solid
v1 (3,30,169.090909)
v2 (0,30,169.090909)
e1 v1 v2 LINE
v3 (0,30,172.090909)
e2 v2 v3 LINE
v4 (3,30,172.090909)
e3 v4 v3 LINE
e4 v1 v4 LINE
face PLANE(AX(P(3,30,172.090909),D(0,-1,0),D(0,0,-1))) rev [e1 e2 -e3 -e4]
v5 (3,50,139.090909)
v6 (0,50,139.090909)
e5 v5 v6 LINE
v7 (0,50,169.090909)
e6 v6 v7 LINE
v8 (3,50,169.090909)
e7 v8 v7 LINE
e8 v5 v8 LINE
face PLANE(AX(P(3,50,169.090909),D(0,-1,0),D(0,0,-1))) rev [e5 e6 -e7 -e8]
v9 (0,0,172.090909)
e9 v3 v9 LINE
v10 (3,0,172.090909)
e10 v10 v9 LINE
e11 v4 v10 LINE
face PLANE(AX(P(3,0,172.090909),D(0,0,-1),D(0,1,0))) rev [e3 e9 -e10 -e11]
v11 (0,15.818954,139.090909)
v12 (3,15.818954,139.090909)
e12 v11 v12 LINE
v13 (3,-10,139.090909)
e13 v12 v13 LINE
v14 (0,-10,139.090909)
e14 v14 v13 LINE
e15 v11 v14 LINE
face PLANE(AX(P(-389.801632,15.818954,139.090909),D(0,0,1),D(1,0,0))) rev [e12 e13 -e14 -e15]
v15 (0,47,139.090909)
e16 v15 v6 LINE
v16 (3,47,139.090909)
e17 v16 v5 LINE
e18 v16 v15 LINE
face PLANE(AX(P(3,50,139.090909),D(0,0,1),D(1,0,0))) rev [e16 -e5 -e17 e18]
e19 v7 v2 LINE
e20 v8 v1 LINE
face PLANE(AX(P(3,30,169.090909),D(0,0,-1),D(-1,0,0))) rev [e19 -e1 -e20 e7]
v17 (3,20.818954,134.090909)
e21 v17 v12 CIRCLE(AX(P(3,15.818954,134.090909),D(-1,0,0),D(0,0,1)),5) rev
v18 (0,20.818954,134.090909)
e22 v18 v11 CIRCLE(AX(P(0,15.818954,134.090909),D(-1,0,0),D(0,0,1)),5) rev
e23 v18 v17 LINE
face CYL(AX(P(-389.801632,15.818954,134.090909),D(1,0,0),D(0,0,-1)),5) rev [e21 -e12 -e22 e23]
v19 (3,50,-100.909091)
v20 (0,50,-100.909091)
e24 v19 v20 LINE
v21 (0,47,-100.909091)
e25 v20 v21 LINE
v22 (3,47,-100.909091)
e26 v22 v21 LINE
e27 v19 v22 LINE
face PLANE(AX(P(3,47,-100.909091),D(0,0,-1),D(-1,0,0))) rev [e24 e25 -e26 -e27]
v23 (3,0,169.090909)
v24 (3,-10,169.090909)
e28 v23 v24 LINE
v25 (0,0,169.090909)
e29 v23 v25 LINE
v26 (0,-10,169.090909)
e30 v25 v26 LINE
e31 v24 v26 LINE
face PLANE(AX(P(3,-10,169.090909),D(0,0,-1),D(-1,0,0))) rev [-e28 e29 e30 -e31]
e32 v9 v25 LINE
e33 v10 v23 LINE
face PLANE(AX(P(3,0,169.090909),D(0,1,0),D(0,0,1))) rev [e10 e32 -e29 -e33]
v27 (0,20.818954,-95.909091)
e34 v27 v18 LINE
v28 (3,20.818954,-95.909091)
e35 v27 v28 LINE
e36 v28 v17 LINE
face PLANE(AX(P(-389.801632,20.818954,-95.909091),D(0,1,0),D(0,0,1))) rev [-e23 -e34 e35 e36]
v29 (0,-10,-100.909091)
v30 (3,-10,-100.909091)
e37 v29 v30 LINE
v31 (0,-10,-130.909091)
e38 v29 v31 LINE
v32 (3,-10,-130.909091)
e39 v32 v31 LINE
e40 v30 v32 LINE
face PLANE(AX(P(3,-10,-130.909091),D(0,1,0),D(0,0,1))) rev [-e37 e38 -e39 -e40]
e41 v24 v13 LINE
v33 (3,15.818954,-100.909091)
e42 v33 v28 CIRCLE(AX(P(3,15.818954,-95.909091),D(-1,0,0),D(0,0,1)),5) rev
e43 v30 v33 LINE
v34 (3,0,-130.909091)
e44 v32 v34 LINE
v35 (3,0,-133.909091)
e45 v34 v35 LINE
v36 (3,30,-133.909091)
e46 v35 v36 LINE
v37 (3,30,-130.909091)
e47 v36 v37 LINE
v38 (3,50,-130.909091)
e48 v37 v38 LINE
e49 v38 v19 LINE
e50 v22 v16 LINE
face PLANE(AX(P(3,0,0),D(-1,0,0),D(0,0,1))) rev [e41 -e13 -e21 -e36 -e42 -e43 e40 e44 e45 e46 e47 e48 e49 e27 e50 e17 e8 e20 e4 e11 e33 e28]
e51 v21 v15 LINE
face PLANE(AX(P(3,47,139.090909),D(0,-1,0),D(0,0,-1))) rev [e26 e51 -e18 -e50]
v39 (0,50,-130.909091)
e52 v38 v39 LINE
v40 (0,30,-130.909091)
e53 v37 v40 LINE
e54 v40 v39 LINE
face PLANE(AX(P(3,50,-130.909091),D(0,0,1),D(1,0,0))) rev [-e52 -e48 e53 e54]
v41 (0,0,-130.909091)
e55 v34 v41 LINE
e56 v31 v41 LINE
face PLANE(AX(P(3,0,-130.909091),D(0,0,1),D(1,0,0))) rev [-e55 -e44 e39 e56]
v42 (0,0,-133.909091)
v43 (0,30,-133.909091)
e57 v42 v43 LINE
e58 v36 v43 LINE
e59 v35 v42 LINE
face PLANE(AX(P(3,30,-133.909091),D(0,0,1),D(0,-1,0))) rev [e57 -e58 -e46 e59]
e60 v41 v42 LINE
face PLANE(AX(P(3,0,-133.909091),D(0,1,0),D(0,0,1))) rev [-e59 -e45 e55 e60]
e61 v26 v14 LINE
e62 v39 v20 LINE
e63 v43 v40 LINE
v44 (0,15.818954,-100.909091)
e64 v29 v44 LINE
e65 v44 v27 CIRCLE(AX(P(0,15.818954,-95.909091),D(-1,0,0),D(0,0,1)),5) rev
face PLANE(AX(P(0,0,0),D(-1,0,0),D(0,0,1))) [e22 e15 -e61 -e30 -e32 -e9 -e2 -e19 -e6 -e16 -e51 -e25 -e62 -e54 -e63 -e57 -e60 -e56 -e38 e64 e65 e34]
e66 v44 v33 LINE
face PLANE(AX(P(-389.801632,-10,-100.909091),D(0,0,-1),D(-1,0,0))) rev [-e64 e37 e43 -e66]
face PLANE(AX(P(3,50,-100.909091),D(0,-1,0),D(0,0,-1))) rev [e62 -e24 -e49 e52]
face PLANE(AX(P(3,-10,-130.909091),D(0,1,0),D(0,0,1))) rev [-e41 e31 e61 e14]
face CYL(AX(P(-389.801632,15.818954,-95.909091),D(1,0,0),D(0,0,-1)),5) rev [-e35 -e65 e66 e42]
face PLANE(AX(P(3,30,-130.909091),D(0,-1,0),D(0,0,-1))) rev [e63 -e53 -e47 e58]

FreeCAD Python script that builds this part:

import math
import FreeCAD as App
import Part
import Sketcher

V = App.Vector
Q = App.Units.Quantity

doc = App.newDocument("Part")
body = doc.addObject("PartDesign::Body", "Body")

sketch1 = doc.addObject("Sketcher::SketchObject", "Sketch")
body.addObject(sketch1)
sketch1.AttachmentSupport = (doc.YZ_Plane, [""])
sketch1.MapMode = "FlatFace"
sketch1.addGeometry([
    Part.LineSegment(V(50, 139.1, 0), V(50, 169.1, 0)),
    Part.LineSegment(V(50, 169.1, 0), V(30, 169.1, 0)),
    Part.LineSegment(V(30, 169.1, 0), V(30, 172.1, 0)),
    Part.LineSegment(V(30, 172.1, 0), V(0, 172.1, 0)),
    Part.LineSegment(V(0, 172.1, 0), V(0, 169.1, 0)),
    Part.LineSegment(V(0, 169.1, 0), V(-10, 169.1, 0)),
    Part.LineSegment(V(-10, 169.1, 0), V(-10, -130.9, 0)),
    Part.LineSegment(V(-10, -130.9, 0), V(0, -130.9, 0)),
    Part.LineSegment(V(0, -130.9, 0), V(0, -133.9, 0)),
    Part.LineSegment(V(0, -133.9, 0), V(30, -133.9, 0)),
    Part.LineSegment(V(30, -133.9, 0), V(30, -130.9, 0)),
    Part.LineSegment(V(30, -130.9, 0), V(50, -130.9, 0)),
    Part.LineSegment(V(50, -130.9, 0), V(50, -100.9, 0)),
    Part.LineSegment(V(50, -100.9, 0), V(47, -100.9, 0)),
    Part.LineSegment(V(47, -100.9, 0), V(47, 139.1, 0)),
    Part.LineSegment(V(47, 139.1, 0), V(50, 139.1, 0)),
], False)
sketch1.addConstraint([
    Sketcher.Constraint("Coincident", 0, 2, 1, 1),
    Sketcher.Constraint("Coincident", 1, 2, 2, 1),
    Sketcher.Constraint("Coincident", 2, 2, 3, 1),
    Sketcher.Constraint("Coincident", 3, 2, 4, 1),
    Sketcher.Constraint("Coincident", 4, 2, 5, 1),
    Sketcher.Constraint("Coincident", 5, 2, 6, 1),
    Sketcher.Constraint("Coincident", 6, 2, 7, 1),
    Sketcher.Constraint("Coincident", 7, 2, 8, 1),
    Sketcher.Constraint("Coincident", 8, 2, 9, 1),
    Sketcher.Constraint("Coincident", 9, 2, 10, 1),
    Sketcher.Constraint("Coincident", 10, 2, 11, 1),
    Sketcher.Constraint("Coincident", 11, 2, 12, 1),
    Sketcher.Constraint("Coincident", 12, 2, 13, 1),
    Sketcher.Constraint("Coincident", 13, 2, 14, 1),
    Sketcher.Constraint("Coincident", 14, 2, 15, 1),
    Sketcher.Constraint("Coincident", 15, 2, 0, 1),
    Sketcher.Constraint("Vertical", 0),
    Sketcher.Constraint("Horizontal", 1),
    Sketcher.Constraint("Vertical", 2),
    Sketcher.Constraint("Horizontal", 3),
    Sketcher.Constraint("Vertical", 4),
    Sketcher.Constraint("Horizontal", 5),
    Sketcher.Constraint("Vertical", 6),
    Sketcher.Constraint("Horizontal", 7),
    Sketcher.Constraint("Vertical", 8),
    Sketcher.Constraint("Horizontal", 9),
    Sketcher.Constraint("Vertical", 10),
    Sketcher.Constraint("Horizontal", 11),
    Sketcher.Constraint("Vertical", 12),
    Sketcher.Constraint("Horizontal", 13),
    Sketcher.Constraint("Vertical", 14),
    Sketcher.Constraint("Horizontal", 15),
    Sketcher.Constraint("PointOnObject", 3, 2, -2),
    Sketcher.Constraint("PointOnObject", 7, 2, -2),
    Sketcher.Constraint("Horizontal", 1, 2, 4, 2),
    Sketcher.Constraint("Horizontal", 7, 2, 10, 2),
    Sketcher.Constraint("Vertical", 2, 2, 9, 2),
    Sketcher.Constraint("Vertical", 0, 2, 11, 2),
    Sketcher.Constraint("Equal", 9, 0),
    Sketcher.Constraint("Equal", 15, 2),
    Sketcher.Constraint("Equal", 4, 8),
    Sketcher.Constraint("Equal", 0, 12),
    Sketcher.Constraint("DistanceX", 1, 2, 1, 1, Q("20 mm")),
    Sketcher.Constraint("DistanceX", 3, 2, 3, 1, Q("30 mm")),
    Sketcher.Constraint("DistanceX", 5, 2, 5, 1, Q("10 mm")),
    Sketcher.Constraint("DistanceX", 13, 2, 13, 1, Q("3 mm")),
    Sketcher.Constraint("DistanceY", 6, 2, 6, 1, Q("300 mm")),
    Sketcher.Constraint("DistanceY", -1, 1, 0, 2, Q("169.090909 mm")),
])
pad1 = doc.addObject("PartDesign::Pad", "Pad")
body.addObject(pad1)
pad1.Profile = sketch1
pad1.Length = 3

sketch2 = doc.addObject("Sketcher::SketchObject", "Sketch001")
body.addObject(sketch2)
sketch2.AttachmentSupport = (doc.YZ_Plane, [""])
sketch2.MapMode = "FlatFace"
sketch2.addGeometry([
    Part.ArcOfCircle(Part.Circle(V(16, -96, 0), V(0, 0, 1), 5), math.radians(-90), math.radians(0)),
    Part.LineSegment(V(16, -101, 0), V(-1717, -101, 0)),
    Part.LineSegment(V(-1717, -101, 0), V(-1717, 139, 0)),
    Part.LineSegment(V(-1717, 139, 0), V(16, 139, 0)),
    Part.ArcOfCircle(Part.Circle(V(16, 134, 0), V(0, 0, 1), 5), math.radians(0), math.radians(90)),
    Part.LineSegment(V(21, 134, 0), V(21, -96, 0)),
], False)
sketch2.addConstraint([
    Sketcher.Constraint("Tangent", 0, 1, 1, 1),
    Sketcher.Constraint("Coincident", 1, 2, 2, 1),
    Sketcher.Constraint("Coincident", 2, 2, 3, 1),
    Sketcher.Constraint("Tangent", 3, 2, 4, 2),
    Sketcher.Constraint("Tangent", 4, 1, 5, 1),
    Sketcher.Constraint("Tangent", 5, 2, 0, 2),
    Sketcher.Constraint("Horizontal", 1),
    Sketcher.Constraint("Vertical", 2),
    Sketcher.Constraint("Horizontal", 3),
    Sketcher.Constraint("Vertical", 5),
    Sketcher.Constraint("Equal", 0, 4),
    Sketcher.Constraint("Radius", 0, Q("5 mm")),
    Sketcher.Constraint("DistanceY", 2, 1, 2, 2, Q("240 mm")),
    Sketcher.Constraint("DistanceX", 1, 2, 1, 1, Q("1732.912869 mm")),
    Sketcher.Constraint("DistanceY", 0, 3, -1, 1, Q("95.909091 mm")),
    Sketcher.Constraint("DistanceX", -1, 1, 0, 3, Q("15.818954 mm")),
])
pocket1 = doc.addObject("PartDesign::Pocket", "Pocket")
body.addObject(pocket1)
pocket1.Profile = sketch2
pocket1.Type = "ThroughAll"
pocket1.Midplane = True

doc.recompute()
